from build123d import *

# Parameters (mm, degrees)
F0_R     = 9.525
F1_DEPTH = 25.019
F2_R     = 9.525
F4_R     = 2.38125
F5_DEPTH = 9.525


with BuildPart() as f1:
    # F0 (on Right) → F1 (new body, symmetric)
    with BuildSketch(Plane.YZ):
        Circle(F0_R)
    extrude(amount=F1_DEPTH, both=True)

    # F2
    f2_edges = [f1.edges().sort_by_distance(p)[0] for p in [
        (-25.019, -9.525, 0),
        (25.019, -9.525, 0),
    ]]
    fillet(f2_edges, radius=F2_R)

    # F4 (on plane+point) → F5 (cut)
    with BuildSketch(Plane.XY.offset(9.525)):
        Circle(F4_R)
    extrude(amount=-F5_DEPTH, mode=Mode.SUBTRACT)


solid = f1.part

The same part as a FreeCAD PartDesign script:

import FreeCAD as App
import Part
import Sketcher
from FreeCAD import Vector
Q = App.Units.Quantity


def edges_at(feature, points):
    """Names of the edges that pass closest to the given points."""
    edges = feature.Shape.Edges
    near = lambda p: min(range(len(edges)), key=lambda i: edges[i].distToShape(Part.Vertex(*p))[0])
    return sorted({f"Edge{near(p) + 1}" for p in points})

doc = App.newDocument("Part")
body = doc.addObject("PartDesign::Body", "Body")

# Sketch on YZ plane
sketch1 = body.newObject("Sketcher::SketchObject", "Sketch")
sketch1.AttachmentSupport = (doc.getObject("YZ_Plane"), [""])
sketch1.MapMode = "FlatFace"
sketch1.addGeometry(Part.Circle(Vector(0, 0, 0), Vector(0, 0, 1), 10), False)
sketch1.addConstraint([
    Sketcher.Constraint("Coincident", 0, 3, -1, 1),
    Sketcher.Constraint("Diameter", 0, Q("0.75 in")),
])
pad1 = body.newObject("PartDesign::Pad", "Pad")
pad1.Profile = sketch1
pad1.Length = Q("1.97 in")
pad1.Midplane = True
doc.recompute()

fillet = body.newObject("PartDesign::Fillet", "Fillet")
fillet.Base = (pad1, edges_at(pad1, [(-25.019, -9.525, 0), (25.019, -9.525, 0)]))
fillet.Radius = Q("0.375 in")

# Sketch on XY plane
sketch2 = body.newObject("Sketcher::SketchObject", "Sketch001")
sketch2.AttachmentSupport = (doc.getObject("XY_Plane"), [""])
sketch2.MapMode = "FlatFace"
sketch2.AttachmentOffset = App.Placement(Vector(0, 0, 0.375 * 25.4), App.Rotation())
sketch2.addGeometry(Part.Circle(Vector(0, 0, 0), Vector(0, 0, 1), 2.4), False)
sketch2.addConstraint([
    Sketcher.Constraint("Coincident", 0, 3, -1, 1),
    Sketcher.Constraint("Diameter", 0, Q("0.1875 in")),
])
pocket1 = body.newObject("PartDesign::Pocket", "Pocket")
pocket1.Profile = sketch2
pocket1.Length = Q("0.375 in")

doc.recompute()
